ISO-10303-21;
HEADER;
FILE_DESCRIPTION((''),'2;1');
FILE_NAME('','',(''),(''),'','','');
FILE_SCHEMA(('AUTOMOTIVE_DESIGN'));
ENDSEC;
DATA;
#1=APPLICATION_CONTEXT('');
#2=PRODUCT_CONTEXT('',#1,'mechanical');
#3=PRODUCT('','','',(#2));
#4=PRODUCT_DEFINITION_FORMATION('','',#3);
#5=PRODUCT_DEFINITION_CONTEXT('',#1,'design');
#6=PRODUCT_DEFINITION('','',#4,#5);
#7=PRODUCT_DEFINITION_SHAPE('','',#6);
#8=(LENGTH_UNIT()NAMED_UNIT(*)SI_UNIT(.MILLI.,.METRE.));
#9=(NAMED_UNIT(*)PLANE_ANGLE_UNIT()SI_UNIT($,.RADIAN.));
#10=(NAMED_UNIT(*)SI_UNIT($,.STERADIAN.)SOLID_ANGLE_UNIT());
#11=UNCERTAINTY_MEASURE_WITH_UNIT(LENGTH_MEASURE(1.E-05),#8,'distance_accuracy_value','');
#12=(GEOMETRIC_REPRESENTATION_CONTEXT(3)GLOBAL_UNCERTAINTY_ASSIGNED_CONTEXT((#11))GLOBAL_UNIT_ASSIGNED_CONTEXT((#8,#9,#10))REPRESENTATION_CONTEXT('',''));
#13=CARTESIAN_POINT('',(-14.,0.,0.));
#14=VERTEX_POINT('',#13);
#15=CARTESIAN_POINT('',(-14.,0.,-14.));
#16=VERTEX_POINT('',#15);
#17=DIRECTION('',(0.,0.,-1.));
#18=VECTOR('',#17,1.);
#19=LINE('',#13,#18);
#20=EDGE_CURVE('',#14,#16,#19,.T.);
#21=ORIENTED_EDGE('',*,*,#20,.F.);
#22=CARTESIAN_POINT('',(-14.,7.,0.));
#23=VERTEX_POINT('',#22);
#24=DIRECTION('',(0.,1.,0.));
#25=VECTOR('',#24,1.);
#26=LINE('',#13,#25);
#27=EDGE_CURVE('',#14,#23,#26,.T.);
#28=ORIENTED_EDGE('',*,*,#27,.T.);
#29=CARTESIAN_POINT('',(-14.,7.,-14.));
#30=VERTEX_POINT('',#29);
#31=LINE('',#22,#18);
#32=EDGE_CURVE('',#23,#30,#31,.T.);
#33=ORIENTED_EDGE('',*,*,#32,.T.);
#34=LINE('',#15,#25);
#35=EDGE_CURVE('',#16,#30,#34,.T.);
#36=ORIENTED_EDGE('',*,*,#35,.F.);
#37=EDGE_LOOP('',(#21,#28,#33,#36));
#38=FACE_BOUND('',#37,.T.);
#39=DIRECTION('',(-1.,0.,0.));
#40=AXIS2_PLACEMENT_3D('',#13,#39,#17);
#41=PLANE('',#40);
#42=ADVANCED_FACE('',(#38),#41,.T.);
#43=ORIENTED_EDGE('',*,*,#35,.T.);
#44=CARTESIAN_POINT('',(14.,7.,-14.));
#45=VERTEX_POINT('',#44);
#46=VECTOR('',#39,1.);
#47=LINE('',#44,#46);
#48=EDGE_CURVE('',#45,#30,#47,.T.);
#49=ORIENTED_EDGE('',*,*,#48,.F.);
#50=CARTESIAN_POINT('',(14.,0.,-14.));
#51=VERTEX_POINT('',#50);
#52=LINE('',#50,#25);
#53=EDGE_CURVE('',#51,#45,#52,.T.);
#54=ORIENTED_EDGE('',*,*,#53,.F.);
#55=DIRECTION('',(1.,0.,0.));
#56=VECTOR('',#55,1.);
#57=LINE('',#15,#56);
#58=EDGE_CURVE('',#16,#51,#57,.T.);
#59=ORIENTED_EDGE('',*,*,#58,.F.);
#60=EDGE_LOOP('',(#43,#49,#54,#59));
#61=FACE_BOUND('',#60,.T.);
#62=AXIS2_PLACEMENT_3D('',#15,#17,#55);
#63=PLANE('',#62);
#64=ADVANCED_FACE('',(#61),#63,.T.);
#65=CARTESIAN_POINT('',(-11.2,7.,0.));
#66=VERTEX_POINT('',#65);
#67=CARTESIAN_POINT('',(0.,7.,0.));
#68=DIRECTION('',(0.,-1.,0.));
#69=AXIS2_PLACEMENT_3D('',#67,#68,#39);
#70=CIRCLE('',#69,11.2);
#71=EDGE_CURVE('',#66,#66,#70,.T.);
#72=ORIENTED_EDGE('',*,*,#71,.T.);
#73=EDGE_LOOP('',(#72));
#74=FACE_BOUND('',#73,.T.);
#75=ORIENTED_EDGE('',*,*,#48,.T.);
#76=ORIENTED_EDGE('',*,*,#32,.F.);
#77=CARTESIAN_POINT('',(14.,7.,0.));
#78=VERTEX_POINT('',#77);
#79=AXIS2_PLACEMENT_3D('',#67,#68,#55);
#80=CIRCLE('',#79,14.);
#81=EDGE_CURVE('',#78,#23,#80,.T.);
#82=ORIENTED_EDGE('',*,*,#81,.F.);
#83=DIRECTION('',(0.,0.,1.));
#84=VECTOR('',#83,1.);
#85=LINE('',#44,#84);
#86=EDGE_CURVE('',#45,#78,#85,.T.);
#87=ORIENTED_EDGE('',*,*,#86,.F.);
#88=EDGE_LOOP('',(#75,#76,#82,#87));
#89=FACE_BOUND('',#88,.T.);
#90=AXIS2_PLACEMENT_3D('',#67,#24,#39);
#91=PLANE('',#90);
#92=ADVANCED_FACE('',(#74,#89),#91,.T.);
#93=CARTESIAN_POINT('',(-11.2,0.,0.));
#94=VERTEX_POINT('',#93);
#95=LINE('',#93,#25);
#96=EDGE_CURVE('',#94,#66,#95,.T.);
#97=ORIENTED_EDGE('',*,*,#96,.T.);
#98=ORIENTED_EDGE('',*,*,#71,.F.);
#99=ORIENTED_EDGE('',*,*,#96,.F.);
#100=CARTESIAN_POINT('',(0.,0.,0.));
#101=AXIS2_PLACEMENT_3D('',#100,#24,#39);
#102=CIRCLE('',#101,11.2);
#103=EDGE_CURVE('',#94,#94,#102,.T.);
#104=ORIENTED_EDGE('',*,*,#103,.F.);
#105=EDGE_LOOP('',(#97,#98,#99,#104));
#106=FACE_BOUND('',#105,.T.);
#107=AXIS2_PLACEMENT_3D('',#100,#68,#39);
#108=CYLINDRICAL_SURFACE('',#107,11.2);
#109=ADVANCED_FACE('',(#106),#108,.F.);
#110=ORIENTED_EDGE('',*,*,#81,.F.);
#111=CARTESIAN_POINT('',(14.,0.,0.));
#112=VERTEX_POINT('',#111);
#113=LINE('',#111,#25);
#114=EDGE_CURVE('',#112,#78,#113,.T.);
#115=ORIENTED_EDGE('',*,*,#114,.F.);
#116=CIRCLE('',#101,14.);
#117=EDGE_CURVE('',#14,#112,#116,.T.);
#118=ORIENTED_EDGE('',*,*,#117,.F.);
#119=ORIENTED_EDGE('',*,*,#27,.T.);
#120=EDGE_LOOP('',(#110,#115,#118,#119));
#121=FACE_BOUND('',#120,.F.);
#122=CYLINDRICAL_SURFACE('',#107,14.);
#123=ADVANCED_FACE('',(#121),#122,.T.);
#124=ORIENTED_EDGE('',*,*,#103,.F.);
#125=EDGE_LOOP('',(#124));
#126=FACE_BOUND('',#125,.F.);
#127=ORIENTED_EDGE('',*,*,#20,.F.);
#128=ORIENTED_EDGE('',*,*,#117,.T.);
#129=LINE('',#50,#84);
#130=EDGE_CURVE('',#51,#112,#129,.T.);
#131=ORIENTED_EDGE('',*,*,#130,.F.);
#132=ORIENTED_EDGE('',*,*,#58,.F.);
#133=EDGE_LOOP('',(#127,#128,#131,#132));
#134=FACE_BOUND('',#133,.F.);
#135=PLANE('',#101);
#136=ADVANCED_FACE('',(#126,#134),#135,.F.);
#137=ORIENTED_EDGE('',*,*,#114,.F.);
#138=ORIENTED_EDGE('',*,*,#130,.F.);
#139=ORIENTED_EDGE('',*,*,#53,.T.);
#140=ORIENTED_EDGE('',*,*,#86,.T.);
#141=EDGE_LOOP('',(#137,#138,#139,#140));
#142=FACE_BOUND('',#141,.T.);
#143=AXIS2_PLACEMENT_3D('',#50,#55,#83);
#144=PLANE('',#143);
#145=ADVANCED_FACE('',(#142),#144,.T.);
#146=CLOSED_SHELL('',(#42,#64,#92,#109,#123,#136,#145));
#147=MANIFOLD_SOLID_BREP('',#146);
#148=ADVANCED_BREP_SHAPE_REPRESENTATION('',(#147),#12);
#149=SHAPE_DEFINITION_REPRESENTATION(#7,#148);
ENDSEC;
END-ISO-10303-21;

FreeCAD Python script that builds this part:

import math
import FreeCAD as App
import Part
import Sketcher
Q = App.Units.Quantity

doc = App.newDocument("Part")
params = doc.addObject("Spreadsheet::Sheet", "Params")
for row, (alias, value) in enumerate([
    ("sketch1_radius", "14 mm"),
    ("sketch1_diameter", "22.4 mm"),
    ("sketch1_height", "14 mm"),
    ("pad1_length", "7 mm"),
], start=1):
    params.set(f"A{row}", alias)
    params.set(f"B{row}", "=" + value)
    params.setAlias(f"B{row}", alias)

body = doc.addObject("PartDesign::Body", "Body")

sketch1 = body.newObject("Sketcher::SketchObject", "Sketch")
sketch1.AttachmentSupport = (doc.getObject("XZ_Plane"), [""])
sketch1.MapMode = "FlatFace"
sketch1.addGeometry([
    Part.ArcOfCircle(Part.Circle(App.Vector(0, 0, 0), App.Vector(0, 0, 1), 14), math.radians(0), math.radians(180)),
    Part.LineSegment(App.Vector(14, 0, 0), App.Vector(14, -14, 0)),
    Part.LineSegment(App.Vector(14, -14, 0), App.Vector(-14, -14, 0)),
    Part.LineSegment(App.Vector(-14, -14, 0), App.Vector(-14, 0, 0)),
    Part.Circle(App.Vector(0, 0, 0), App.Vector(0, 0, 1), 11.2),
], False)
sketch1.addConstraint([
    Sketcher.Constraint("Tangent", 0, 1, 1, 1),
    Sketcher.Constraint("Coincident", 1, 2, 2, 1),
    Sketcher.Constraint("Coincident", 2, 2, 3, 1),
    Sketcher.Constraint("Tangent", 3, 2, 0, 2),
    Sketcher.Constraint("Vertical", 1),
    Sketcher.Constraint("Horizontal", 2),
    Sketcher.Constraint("Vertical", 3),
    Sketcher.Constraint("Coincident", 0, 3, -1, 1),
    Sketcher.Constraint("Coincident", 4, 3, -1, 1),
    Sketcher.Constraint("Radius", 0, Q("14 mm")),
    Sketcher.Constraint("Diameter", 4, Q("22.4 mm")),
    Sketcher.Constraint("DistanceY", 1, 2, 1, 1, Q("14 mm")),
])
sketch1.setExpression("Constraints[9]", "Params.sketch1_radius")
sketch1.setExpression("Constraints[10]", "Params.sketch1_diameter")
sketch1.setExpression("Constraints[11]", "Params.sketch1_height")
pad1 = body.newObject("PartDesign::Pad", "Pad")
pad1.Profile = sketch1
pad1.setExpression("Length", "Params.pad1_length")
pad1.Reversed = True

doc.recompute()
